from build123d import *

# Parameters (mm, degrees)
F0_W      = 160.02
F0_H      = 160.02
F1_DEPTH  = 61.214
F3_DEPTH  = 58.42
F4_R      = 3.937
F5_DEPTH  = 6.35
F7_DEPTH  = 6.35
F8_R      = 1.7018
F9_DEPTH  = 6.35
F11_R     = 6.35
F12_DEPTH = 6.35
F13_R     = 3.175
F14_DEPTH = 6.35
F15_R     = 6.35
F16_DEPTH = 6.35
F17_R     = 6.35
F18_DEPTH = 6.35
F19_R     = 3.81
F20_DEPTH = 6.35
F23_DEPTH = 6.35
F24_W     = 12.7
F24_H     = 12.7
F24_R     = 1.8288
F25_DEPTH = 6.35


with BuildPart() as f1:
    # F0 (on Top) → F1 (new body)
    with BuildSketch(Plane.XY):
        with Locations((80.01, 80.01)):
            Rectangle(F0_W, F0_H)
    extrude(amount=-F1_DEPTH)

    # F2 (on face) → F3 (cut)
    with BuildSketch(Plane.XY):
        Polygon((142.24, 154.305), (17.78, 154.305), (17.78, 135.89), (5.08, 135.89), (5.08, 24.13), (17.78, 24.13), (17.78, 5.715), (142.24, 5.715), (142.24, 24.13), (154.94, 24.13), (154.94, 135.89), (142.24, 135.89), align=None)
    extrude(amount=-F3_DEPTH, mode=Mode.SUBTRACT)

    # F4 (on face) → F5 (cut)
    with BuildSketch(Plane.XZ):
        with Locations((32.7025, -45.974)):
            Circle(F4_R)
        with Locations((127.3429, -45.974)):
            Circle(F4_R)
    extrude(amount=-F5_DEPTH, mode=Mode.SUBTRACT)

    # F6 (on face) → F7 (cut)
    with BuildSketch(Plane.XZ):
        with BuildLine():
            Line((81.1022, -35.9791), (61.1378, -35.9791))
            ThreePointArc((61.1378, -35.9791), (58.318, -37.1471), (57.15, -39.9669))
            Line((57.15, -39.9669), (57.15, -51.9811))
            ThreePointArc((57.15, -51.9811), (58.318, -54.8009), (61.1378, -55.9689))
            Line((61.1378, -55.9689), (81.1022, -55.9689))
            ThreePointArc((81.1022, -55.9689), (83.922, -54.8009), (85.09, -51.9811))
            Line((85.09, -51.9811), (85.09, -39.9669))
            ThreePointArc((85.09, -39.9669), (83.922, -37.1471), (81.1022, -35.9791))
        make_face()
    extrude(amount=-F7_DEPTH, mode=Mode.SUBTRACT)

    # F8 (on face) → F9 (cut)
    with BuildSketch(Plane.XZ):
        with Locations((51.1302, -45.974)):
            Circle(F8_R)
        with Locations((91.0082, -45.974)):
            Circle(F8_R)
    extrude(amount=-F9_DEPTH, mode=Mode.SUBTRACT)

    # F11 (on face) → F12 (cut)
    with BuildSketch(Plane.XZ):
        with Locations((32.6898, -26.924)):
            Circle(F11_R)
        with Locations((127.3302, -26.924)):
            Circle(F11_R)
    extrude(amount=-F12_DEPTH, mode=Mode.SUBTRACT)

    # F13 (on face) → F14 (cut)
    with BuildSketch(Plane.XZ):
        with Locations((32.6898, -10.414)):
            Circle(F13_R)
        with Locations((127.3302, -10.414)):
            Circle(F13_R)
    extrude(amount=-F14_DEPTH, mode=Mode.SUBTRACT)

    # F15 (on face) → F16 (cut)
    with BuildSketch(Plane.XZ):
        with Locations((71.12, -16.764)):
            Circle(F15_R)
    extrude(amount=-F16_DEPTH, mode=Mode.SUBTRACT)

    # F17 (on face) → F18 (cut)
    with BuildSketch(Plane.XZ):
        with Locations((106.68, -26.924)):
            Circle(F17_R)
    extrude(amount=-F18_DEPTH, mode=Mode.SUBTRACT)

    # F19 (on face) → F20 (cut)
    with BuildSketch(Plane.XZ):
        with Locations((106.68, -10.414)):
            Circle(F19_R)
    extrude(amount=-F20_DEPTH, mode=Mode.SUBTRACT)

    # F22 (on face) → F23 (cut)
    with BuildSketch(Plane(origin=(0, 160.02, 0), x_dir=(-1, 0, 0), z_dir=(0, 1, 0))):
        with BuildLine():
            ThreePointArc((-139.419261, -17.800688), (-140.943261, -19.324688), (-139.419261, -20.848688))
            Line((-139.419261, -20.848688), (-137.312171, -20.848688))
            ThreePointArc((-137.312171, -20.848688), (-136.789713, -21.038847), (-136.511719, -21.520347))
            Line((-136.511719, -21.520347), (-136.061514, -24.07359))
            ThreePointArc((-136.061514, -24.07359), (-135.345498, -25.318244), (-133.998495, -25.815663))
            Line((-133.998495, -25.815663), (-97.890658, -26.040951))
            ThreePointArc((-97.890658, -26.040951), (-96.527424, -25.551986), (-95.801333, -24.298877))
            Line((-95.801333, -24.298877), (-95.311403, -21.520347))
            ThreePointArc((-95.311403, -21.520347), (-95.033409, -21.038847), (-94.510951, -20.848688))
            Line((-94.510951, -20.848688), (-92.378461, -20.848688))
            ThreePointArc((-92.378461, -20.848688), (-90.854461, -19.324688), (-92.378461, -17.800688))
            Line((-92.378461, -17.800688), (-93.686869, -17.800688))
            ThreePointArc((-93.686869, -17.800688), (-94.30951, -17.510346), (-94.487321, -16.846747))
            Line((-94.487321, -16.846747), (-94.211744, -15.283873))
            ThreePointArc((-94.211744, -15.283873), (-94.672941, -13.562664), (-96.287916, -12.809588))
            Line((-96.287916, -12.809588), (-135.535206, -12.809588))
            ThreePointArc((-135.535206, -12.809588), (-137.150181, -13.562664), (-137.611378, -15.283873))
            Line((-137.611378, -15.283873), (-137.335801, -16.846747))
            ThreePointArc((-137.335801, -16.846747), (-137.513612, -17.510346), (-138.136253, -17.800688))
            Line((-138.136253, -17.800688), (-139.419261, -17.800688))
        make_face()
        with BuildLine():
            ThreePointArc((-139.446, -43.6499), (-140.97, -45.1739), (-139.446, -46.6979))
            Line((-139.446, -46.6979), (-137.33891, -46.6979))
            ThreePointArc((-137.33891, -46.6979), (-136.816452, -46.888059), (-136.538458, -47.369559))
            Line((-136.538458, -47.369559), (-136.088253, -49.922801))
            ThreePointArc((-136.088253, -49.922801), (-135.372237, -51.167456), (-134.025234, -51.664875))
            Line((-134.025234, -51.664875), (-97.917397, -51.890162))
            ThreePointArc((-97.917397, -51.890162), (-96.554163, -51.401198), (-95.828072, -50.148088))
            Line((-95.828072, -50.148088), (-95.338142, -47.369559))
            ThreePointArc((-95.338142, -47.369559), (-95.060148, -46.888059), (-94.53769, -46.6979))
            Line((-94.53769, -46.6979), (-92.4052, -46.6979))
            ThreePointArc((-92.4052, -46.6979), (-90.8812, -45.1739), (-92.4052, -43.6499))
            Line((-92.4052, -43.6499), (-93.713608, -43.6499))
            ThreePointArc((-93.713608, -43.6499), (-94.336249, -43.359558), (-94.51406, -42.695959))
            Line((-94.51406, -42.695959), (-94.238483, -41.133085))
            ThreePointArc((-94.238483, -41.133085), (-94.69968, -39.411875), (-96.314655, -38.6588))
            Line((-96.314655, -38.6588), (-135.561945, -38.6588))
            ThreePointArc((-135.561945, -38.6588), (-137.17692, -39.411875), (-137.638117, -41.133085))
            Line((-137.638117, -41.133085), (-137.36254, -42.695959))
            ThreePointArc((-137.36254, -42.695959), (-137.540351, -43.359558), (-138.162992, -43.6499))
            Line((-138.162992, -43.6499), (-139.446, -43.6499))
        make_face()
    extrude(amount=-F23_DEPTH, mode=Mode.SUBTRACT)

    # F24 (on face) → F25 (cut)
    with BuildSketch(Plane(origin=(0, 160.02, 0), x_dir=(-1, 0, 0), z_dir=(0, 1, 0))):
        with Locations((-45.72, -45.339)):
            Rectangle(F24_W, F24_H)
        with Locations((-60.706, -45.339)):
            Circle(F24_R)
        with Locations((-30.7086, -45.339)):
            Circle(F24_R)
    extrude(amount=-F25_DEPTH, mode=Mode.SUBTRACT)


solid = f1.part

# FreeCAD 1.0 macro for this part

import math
import FreeCAD as App
import Part
import Sketcher

V = App.Vector
Q = App.Units.Quantity


def add_polygon(sketch, points):
    """Adds a closed chain of lines whose ends are joined by coincident constraints."""
    first, n = sketch.GeometryCount, len(points)
    for a, b in zip(points, points[1:] + points[:1]):
        sketch.addGeometry(Part.LineSegment(App.Vector(*a, 0), App.Vector(*b, 0)), False)
    for i in range(n):
        sketch.addConstraint(Sketcher.Constraint("Coincident", first + i, 2, first + (i + 1) % n, 1))

doc = App.newDocument("Part")
body = doc.addObject("PartDesign::Body", "Body")

# Sketch on XY plane
sketch1 = doc.addObject("Sketcher::SketchObject", "Sketch")
body.addObject(sketch1)
sketch1.AttachmentSupport = (doc.XY_Plane, [""])
sketch1.MapMode = "FlatFace"
add_polygon(sketch1, [(0, 160.02), (0, 0), (160.02, 0), (160.02, 160.02)])  # lines 0-3
sketch1.addConstraint([
    Sketcher.Constraint("Vertical", 0),
    Sketcher.Constraint("Horizontal", 1),
    Sketcher.Constraint("Vertical", 2),
    Sketcher.Constraint("Horizontal", 3),
    Sketcher.Constraint("Coincident", 0, 2, -1, 1),
    Sketcher.Constraint("Equal", 3, 0),
    Sketcher.Constraint("DistanceX", 1, 1, 1, 2, Q("6.3 in")),
])
pad1 = doc.addObject("PartDesign::Pad", "Pad")
body.addObject(pad1)
pad1.Profile = sketch1
pad1.Length = Q("2.41 in")
pad1.Reversed = True

# Sketch on XY plane
sketch2 = doc.addObject("Sketcher::SketchObject", "Sketch001")
body.addObject(sketch2)
sketch2.AttachmentSupport = (doc.XY_Plane, [""])
sketch2.MapMode = "FlatFace"
add_polygon(sketch2, [(142.24, 154.305), (17.78, 154.305), (17.78, 135.89), (5.08, 135.89), (5.08, 24.13), (17.78, 24.13), (17.78, 5.715), (142.24, 5.715), (142.24, 24.13), (154.94, 24.13), (154.94, 135.89), (142.24, 135.89)])  # lines 0-11
sketch2.addConstraint([
    Sketcher.Constraint("Horizontal", 0),
    Sketcher.Constraint("Vertical", 1),
    Sketcher.Constraint("Horizontal", 2),
    Sketcher.Constraint("Vertical", 3),
    Sketcher.Constraint("Horizontal", 4),
    Sketcher.Constraint("Vertical", 5),
    Sketcher.Constraint("Horizontal", 6),
    Sketcher.Constraint("Vertical", 7),
    Sketcher.Constraint("Horizontal", 8),
    Sketcher.Constraint("Vertical", 9),
    Sketcher.Constraint("Horizontal", 10),
    Sketcher.Constraint("Vertical", 11),
    Sketcher.Constraint("Horizontal", 4, 2, 7, 2),
    Sketcher.Constraint("Horizontal", 2, 2, 9, 2),
    Sketcher.Constraint("Vertical", 1, 2, 4, 2),
    Sketcher.Constraint("Vertical", 7, 2, 10, 2),
    Sketcher.Constraint("Equal", 4, 8),
    Sketcher.Constraint("Equal", 1, 5),
    Sketcher.Constraint("DistanceX", 0, 2, 0, 1, Q("4.9 in")),
    Sketcher.Constraint("DistanceX", 2, 2, 2, 1, Q("0.5 in")),
    Sketcher.Constraint("DistanceY", 3, 2, 3, 1, Q("4.4 in")),
    Sketcher.Constraint("DistanceX", -1, 1, 0, 2, Q("0.7 in")),
    Sketcher.Constraint("DistanceY", 1, 2, 1, 1, Q("0.725 in")),
    Sketcher.Constraint("DistanceY", -1, 1, 1, 2, Q("5.35 in")),
])
pocket1 = doc.addObject("PartDesign::Pocket", "Pocket")
body.addObject(pocket1)
pocket1.Profile = sketch2
pocket1.Length = Q("2.3 in")

# Sketch on XZ plane
sketch3 = doc.addObject("Sketcher::SketchObject", "Sketch002")
body.addObject(sketch3)
sketch3.AttachmentSupport = (doc.XZ_Plane, [""])
sketch3.MapMode = "FlatFace"
sketch3.addGeometry([
    Part.Circle(V(32.7025, -45.974, 0), V(0, 0, 1), 3.937),
    Part.Circle(V(127.3429, -45.974, 0), V(0, 0, 1), 3.937),
], False)
sketch3.addConstraint([
    Sketcher.Constraint("Equal", 0, 1),
    Sketcher.Constraint("Horizontal", 0, 3, 1, 3),
    Sketcher.Constraint("Diameter", 0, Q("0.31 in")),
    Sketcher.Constraint("DistanceY", 0, 3, -1, 1, Q("1.81 in")),
    Sketcher.Constraint("DistanceX", 0, 3, 1, 3, Q("3.726 in")),
    Sketcher.Constraint("DistanceX", -1, 1, 0, 3, Q("1.2875 in")),
])
pocket2 = doc.addObject("PartDesign::Pocket", "Pocket001")
body.addObject(pocket2)
pocket2.Profile = sketch3
pocket2.Length = Q("0.25 in")

# Sketch on XZ plane
sketch4 = doc.addObject("Sketcher::SketchObject", "Sketch003")
body.addObject(sketch4)
sketch4.AttachmentSupport = (doc.XZ_Plane, [""])
sketch4.MapMode = "FlatFace"
sketch4.addGeometry([
    Part.LineSegment(V(81.1022, -35.9791, 0), V(61.1378, -35.9791, 0)),  # 0
    Part.ArcOfCircle(Part.Circle(V(61.137801, -39.966901, 0), V(0, 0, 1), 3.987801), math.radians(90.000021), math.radians(179.999979)),  # 1
    Part.LineSegment(V(57.15, -39.9669, 0), V(57.15, -51.9811, 0)),  # 2
    Part.ArcOfCircle(Part.Circle(V(61.137801, -51.981099, 0), V(0, 0, 1), 3.987801), math.radians(-179.999979), math.radians(-90.000021)),  # 3
    Part.LineSegment(V(61.1378, -55.9689, 0), V(81.1022, -55.9689, 0)),  # 4
    Part.ArcOfCircle(Part.Circle(V(81.102199, -51.981099, 0), V(0, 0, 1), 3.987801), math.radians(-89.999979), math.radians(-0.000021)),  # 5
    Part.LineSegment(V(85.09, -51.9811, 0), V(85.09, -39.9669, 0)),  # 6
    Part.ArcOfCircle(Part.Circle(V(81.102199, -39.966901, 0), V(0, 0, 1), 3.987801), math.radians(0.000021), math.radians(89.999979)),  # 7
], False)
sketch4.addConstraint([
    Sketcher.Constraint("Tangent", 0, 2, 1, 1),
    Sketcher.Constraint("Tangent", 1, 2, 2, 1),
    Sketcher.Constraint("Tangent", 2, 2, 3, 1),
    Sketcher.Constraint("Tangent", 3, 2, 4, 1),
    Sketcher.Constraint("Tangent", 4, 2, 5, 1),
    Sketcher.Constraint("Tangent", 5, 2, 6, 1),
    Sketcher.Constraint("Tangent", 6, 2, 7, 1),
    Sketcher.Constraint("Tangent", 7, 2, 0, 1),
    Sketcher.Constraint("Horizontal", 0),
    Sketcher.Constraint("Vertical", 2),
    Sketcher.Constraint("Horizontal", 4),
    Sketcher.Constraint("Vertical", 6),
    Sketcher.Constraint("Equal", 1, 3),
    Sketcher.Constraint("Equal", 3, 5),
    Sketcher.Constraint("Equal", 5, 7),
    Sketcher.Constraint("Radius", 1, Q("0.1570001 in")),
    Sketcher.Constraint("DistanceX", 0, 2, 0, 1, Q("0.786 in")),
    Sketcher.Constraint("DistanceY", 2, 2, 2, 1, Q("0.473 in")),
    Sketcher.Constraint("DistanceX", -1, 1, 1, 2, Q("2.25 in")),
    Sketcher.Constraint("DistanceY", 1, 3, -1, 1, Q("1.5735001 in")),
])
pocket3 = doc.addObject("PartDesign::Pocket", "Pocket002")
body.addObject(pocket3)
pocket3.Profile = sketch4
pocket3.Length = Q("0.25 in")

# Sketch on XZ plane
sketch5 = doc.addObject("Sketcher::SketchObject", "Sketch004")
body.addObject(sketch5)
sketch5.AttachmentSupport = (doc.XZ_Plane, [""])
sketch5.MapMode = "FlatFace"
sketch5.addGeometry([
    Part.Circle(V(51.1302, -45.974, 0), V(0, 0, 1), 1.7018),
    Part.Circle(V(91.0082, -45.974, 0), V(0, 0, 1), 1.7018),
], False)
sketch5.addConstraint([
    Sketcher.Constraint("Equal", 0, 1),
    Sketcher.Constraint("Horizontal", 0, 3, 1, 3),
    Sketcher.Constraint("Diameter", 0, Q("0.134 in")),
    Sketcher.Constraint("DistanceY", 0, 3, -1, 1, Q("1.81 in")),
    Sketcher.Constraint("DistanceX", 0, 3, 1, 3, Q("1.57 in")),
    Sketcher.Constraint("DistanceX", -1, 1, 0, 3, Q("2.013 in")),
])
pocket4 = doc.addObject("PartDesign::Pocket", "Pocket003")
body.addObject(pocket4)
pocket4.Profile = sketch5
pocket4.Length = Q("0.25 in")

# Sketch on XZ plane
sketch6 = doc.addObject("Sketcher::SketchObject", "Sketch005")
body.addObject(sketch6)
sketch6.AttachmentSupport = (doc.XZ_Plane, [""])
sketch6.MapMode = "FlatFace"
sketch6.addGeometry([
    Part.Circle(V(32.6898, -26.924, 0), V(0, 0, 1), 6.35),
    Part.Circle(V(127.3302, -26.924, 0), V(0, 0, 1), 6.35),
], False)
sketch6.addConstraint([
    Sketcher.Constraint("Equal", 0, 1),
    Sketcher.Constraint("Horizontal", 0, 3, 1, 3),
    Sketcher.Constraint("Diameter", 0, Q("0.5 in")),
    Sketcher.Constraint("DistanceY", 0, 3, -1, 1, Q("1.06 in")),
    Sketcher.Constraint("DistanceX", -1, 1, 0, 3, Q("1.287 in")),
    Sketcher.Constraint("DistanceX", -1, 1, 1, 3, Q("5.013 in")),
])
pocket5 = doc.addObject("PartDesign::Pocket", "Pocket004")
body.addObject(pocket5)
pocket5.Profile = sketch6
pocket5.Length = Q("0.25 in")

# Sketch on XZ plane
sketch7 = doc.addObject("Sketcher::SketchObject", "Sketch006")
body.addObject(sketch7)
sketch7.AttachmentSupport = (doc.XZ_Plane, [""])
sketch7.MapMode = "FlatFace"
sketch7.addGeometry([
    Part.Circle(V(32.6898, -10.414, 0), V(0, 0, 1), 3.175),
    Part.Circle(V(127.3302, -10.414, 0), V(0, 0, 1), 3.175),
], False)
sketch7.addConstraint([
    Sketcher.Constraint("Equal", 0, 1),
    Sketcher.Constraint("Horizontal", 0, 3, 1, 3),
    Sketcher.Constraint("Diameter", 0, Q("0.25 in")),
    Sketcher.Constraint("DistanceY", 0, 3, -1, 1, Q("0.41 in")),
    Sketcher.Constraint("DistanceX", -1, 1, 0, 3, Q("1.287 in")),
    Sketcher.Constraint("DistanceX", -1, 1, 1, 3, Q("5.013 in")),
])
pocket6 = doc.addObject("PartDesign::Pocket", "Pocket005")
body.addObject(pocket6)
pocket6.Profile = sketch7
pocket6.Length = Q("0.25 in")

# Sketch on XZ plane
sketch8 = doc.addObject("Sketcher::SketchObject", "Sketch007")
body.addObject(sketch8)
sketch8.AttachmentSupport = (doc.XZ_Plane, [""])
sketch8.MapMode = "FlatFace"
sketch8.addGeometry(Part.Circle(V(71.12, -16.764, 0), V(0, 0, 1), 6.35), False)
sketch8.addConstraint([
    Sketcher.Constraint("Diameter", 0, Q("0.5 in")),
    Sketcher.Constraint("DistanceX", -1, 1, 0, 3, Q("2.8 in")),
    Sketcher.Constraint("DistanceY", 0, 3, -1, 1, Q("0.66 in")),
])
pocket7 = doc.addObject("PartDesign::Pocket", "Pocket006")
body.addObject(pocket7)
pocket7.Profile = sketch8
pocket7.Length = Q("0.25 in")

# Sketch on XZ plane
sketch9 = doc.addObject("Sketcher::SketchObject", "Sketch008")
body.addObject(sketch9)
sketch9.AttachmentSupport = (doc.XZ_Plane, [""])
sketch9.MapMode = "FlatFace"
sketch9.addGeometry(Part.Circle(V(106.68, -26.924, 0), V(0, 0, 1), 6.35), False)
sketch9.addConstraint([
    Sketcher.Constraint("Diameter", 0, Q("0.5 in")),
    Sketcher.Constraint("DistanceX", -1, 1, 0, 3, Q("4.2 in")),
    Sketcher.Constraint("DistanceY", 0, 3, -1, 1, Q("1.06 in")),
])
pocket8 = doc.addObject("PartDesign::Pocket", "Pocket007")
body.addObject(pocket8)
pocket8.Profile = sketch9
pocket8.Length = Q("0.25 in")

# Sketch on XZ plane
sketch10 = doc.addObject("Sketcher::SketchObject", "Sketch009")
body.addObject(sketch10)
sketch10.AttachmentSupport = (doc.XZ_Plane, [""])
sketch10.MapMode = "FlatFace"
sketch10.addGeometry(Part.Circle(V(106.68, -10.414, 0), V(0, 0, 1), 3.81), False)
sketch10.addConstraint([
    Sketcher.Constraint("Diameter", 0, Q("0.3 in")),
    Sketcher.Constraint("DistanceX", -1, 1, 0, 3, Q("4.2 in")),
    Sketcher.Constraint("DistanceY", 0, 3, -1, 1, Q("0.41 in")),
])
pocket9 = doc.addObject("PartDesign::Pocket", "Pocket008")
body.addObject(pocket9)
pocket9.Profile = sketch10
pocket9.Length = Q("0.25 in")

# Sketch on XZ plane
sketch11 = doc.addObject("Sketcher::SketchObject", "Sketch010")
body.addObject(sketch11)
sketch11.AttachmentSupport = (doc.XZ_Plane, [""])
sketch11.MapMode = "FlatFace"
sketch11.AttachmentOffset = App.Placement(V(0, 0, -6.3 * 25.4), App.Rotation())
sketch11.addGeometry([
    Part.ArcOfCircle(Part.Circle(V(139.419261, -19.324688, 0), V(0, 0, 1), 1.524), math.radians(-90), math.radians(90)),  # 0
    Part.LineSegment(V(139.419261, -20.848688, 0), V(137.312171, -20.848688, 0)),  # 1
    Part.ArcOfCircle(Part.Circle(V(137.312171, -21.661488, 0), V(0, 0, 1), 0.8128), math.radians(89.999972), math.radians(170.00003)),  # 2
    Part.LineSegment(V(136.511719, -21.520347, 0), V(136.061514, -24.07359, 0)),  # 3
    Part.ArcOfCircle(Part.Circle(V(133.985342, -23.707503, 0), V(0, 0, 1), 2.108201), math.radians(-89.642528), math.radians(-10.00004)),  # 4
    Part.LineSegment(V(133.998495, -25.815663, 0), V(97.890658, -26.040951, 0)),  # 5
    Part.ArcOfCircle(Part.Circle(V(97.877505, -23.932792, 0), V(0, 0, 1), 2.1082), math.radians(-170), math.radians(-89.642526)),  # 6
    Part.LineSegment(V(95.801333, -24.298877, 0), V(95.311403, -21.520347, 0)),  # 7
    Part.ArcOfCircle(Part.Circle(V(94.510951, -21.661488, 0), V(0, 0, 1), 0.8128), math.radians(9.99997), math.radians(90.000028)),  # 8
    Part.LineSegment(V(94.510951, -20.848688, 0), V(92.378461, -20.848688, 0)),  # 9
    Part.ArcOfCircle(Part.Circle(V(92.378461, -19.324688, 0), V(0, 0, 1), 1.524), math.radians(90), math.radians(270)),  # 10
    Part.LineSegment(V(92.378461, -17.800688, 0), V(93.686869, -17.800688, 0)),  # 11
    Part.ArcOfCircle(Part.Circle(V(93.686869, -16.987888, 0), V(0, 0, 1), 0.8128), math.radians(-90.000022), math.radians(9.999989)),  # 12
    Part.LineSegment(V(94.487321, -16.846747, 0), V(94.211744, -15.283873, 0)),  # 13
    Part.ArcOfCircle(Part.Circle(V(96.287917, -14.917789, 0), V(0, 0, 1), 2.108201), math.radians(90.000032), math.radians(189.999958)),  # 14
    Part.LineSegment(V(96.287916, -12.809588, 0), V(135.535206, -12.809588, 0)),  # 15
    Part.ArcOfCircle(Part.Circle(V(135.535205, -14.917789, 0), V(0, 0, 1), 2.108201), math.radians(-9.999958), math.radians(89.999968)),  # 16
    Part.LineSegment(V(137.611378, -15.283873, 0), V(137.335801, -16.846747, 0)),  # 17
    Part.ArcOfCircle(Part.Circle(V(138.136253, -16.987888, 0), V(0, 0, 1), 0.8128), math.radians(170.000011), math.radians(270.000022)),  # 18
    Part.LineSegment(V(138.136253, -17.800688, 0), V(139.419261, -17.800688, 0)),  # 19
    Part.ArcOfCircle(Part.Circle(V(139.446, -45.1739, 0), V(0, 0, 1), 1.524), math.radians(-90), math.radians(90)),  # 20
    Part.LineSegment(V(139.446, -46.6979, 0), V(137.33891, -46.6979, 0)),  # 21
    Part.ArcOfCircle(Part.Circle(V(137.33891, -47.5107, 0), V(0, 0, 1), 0.8128), math.radians(89.999972), math.radians(170.00003)),  # 22
    Part.LineSegment(V(136.538458, -47.369559, 0), V(136.088253, -49.922801, 0)),  # 23
    Part.ArcOfCircle(Part.Circle(V(134.012081, -49.556716, 0), V(0, 0, 1), 2.1082), math.radians(-89.642531), math.radians(-10.000004)),  # 24
    Part.LineSegment(V(134.025234, -51.664875, 0), V(97.917397, -51.890162, 0)),  # 25
    Part.ArcOfCircle(Part.Circle(V(97.904242, -49.782005, 0), V(0, 0, 1), 2.108198), math.radians(-170.000057), math.radians(-89.642469)),  # 26
    Part.LineSegment(V(95.828072, -50.148088, 0), V(95.338142, -47.369559, 0)),  # 27
    Part.ArcOfCircle(Part.Circle(V(94.53769, -47.5107, 0), V(0, 0, 1), 0.8128), math.radians(9.99997), math.radians(90.000028)),  # 28
    Part.LineSegment(V(94.53769, -46.6979, 0), V(92.4052, -46.6979, 0)),  # 29
    Part.ArcOfCircle(Part.Circle(V(92.4052, -45.1739, 0), V(0, 0, 1), 1.524), math.radians(90), math.radians(270)),  # 30
    Part.LineSegment(V(92.4052, -43.6499, 0), V(93.713608, -43.6499, 0)),  # 31
    Part.ArcOfCircle(Part.Circle(V(93.713608, -42.8371, 0), V(0, 0, 1), 0.8128), math.radians(-90.000022), math.radians(9.999989)),  # 32
    Part.LineSegment(V(94.51406, -42.695959, 0), V(94.238483, -41.133085, 0)),  # 33
    Part.ArcOfCircle(Part.Circle(V(96.314655, -40.767, 0), V(0, 0, 1), 2.1082), math.radians(89.999994), math.radians(189.999996)),  # 34
    Part.LineSegment(V(96.314655, -38.6588, 0), V(135.561945, -38.6588, 0)),  # 35
    Part.ArcOfCircle(Part.Circle(V(135.561945, -40.767, 0), V(0, 0, 1), 2.1082), math.radians(-9.999996), math.radians(90.000006)),  # 36
    Part.LineSegment(V(137.638117, -41.133085, 0), V(137.36254, -42.695959, 0)),  # 37
    Part.ArcOfCircle(Part.Circle(V(138.162992, -42.8371, 0), V(0, 0, 1), 0.8128), math.radians(170.000011), math.radians(270.000022)),  # 38
    Part.LineSegment(V(138.162992, -43.6499, 0), V(139.446, -43.6499, 0)),  # 39
], False)
sketch11.addConstraint([
    Sketcher.Constraint("Tangent", 0, 1, 1, 1),
    Sketcher.Constraint("Tangent", 1, 2, 2, 1),
    Sketcher.Constraint("Tangent", 2, 2, 3, 1),
    Sketcher.Constraint("Tangent", 3, 2, 4, 2),
    Sketcher.Constraint("Tangent", 4, 1, 5, 1),
    Sketcher.Constraint("Tangent", 5, 2, 6, 2),
    Sketcher.Constraint("Tangent", 6, 1, 7, 1),
    Sketcher.Constraint("Tangent", 7, 2, 8, 1),
    Sketcher.Constraint("Tangent", 8, 2, 9, 1),
    Sketcher.Constraint("Tangent", 9, 2, 10, 2),
    Sketcher.Constraint("Tangent", 10, 1, 11, 1),
    Sketcher.Constraint("Tangent", 11, 2, 12, 1),
    Sketcher.Constraint("Tangent", 12, 2, 13, 1),
    Sketcher.Constraint("Tangent", 13, 2, 14, 2),
    Sketcher.Constraint("Tangent", 14, 1, 15, 1),
    Sketcher.Constraint("Tangent", 15, 2, 16, 2),
    Sketcher.Constraint("Tangent", 16, 1, 17, 1),
    Sketcher.Constraint("Tangent", 17, 2, 18, 1),
    Sketcher.Constraint("Tangent", 18, 2, 19, 1),
    Sketcher.Constraint("Tangent", 19, 2, 0, 2),
    Sketcher.Constraint("Tangent", 20, 1, 21, 1),
    Sketcher.Constraint("Tangent", 21, 2, 22, 1),
    Sketcher.Constraint("Tangent", 22, 2, 23, 1),
    Sketcher.Constraint("Tangent", 23, 2, 24, 2),
    Sketcher.Constraint("Tangent", 24, 1, 25, 1),
    Sketcher.Constraint("Tangent", 25, 2, 26, 2),
    Sketcher.Constraint("Tangent", 26, 1, 27, 1),
    Sketcher.Constraint("Tangent", 27, 2, 28, 1),
    Sketcher.Constraint("Tangent", 28, 2, 29, 1),
    Sketcher.Constraint("Tangent", 29, 2, 30, 2),
    Sketcher.Constraint("Tangent", 30, 1, 31, 1),
    Sketcher.Constraint("Tangent", 31, 2, 32, 1),
    Sketcher.Constraint("Tangent", 32, 2, 33, 1),
    Sketcher.Constraint("Tangent", 33, 2, 34, 2),
    Sketcher.Constraint("Tangent", 34, 1, 35, 1),
    Sketcher.Constraint("Tangent", 35, 2, 36, 2),
    Sketcher.Constraint("Tangent", 36, 1, 37, 1),
    Sketcher.Constraint("Tangent", 37, 2, 38, 1),
    Sketcher.Constraint("Tangent", 38, 2, 39, 1),
    Sketcher.Constraint("Tangent", 39, 2, 20, 2),
    Sketcher.Constraint("Horizontal", 1),
    Sketcher.Constraint("Horizontal", 9),
    Sketcher.Constraint("Horizontal", 11),
    Sketcher.Constraint("Horizontal", 15),
    Sketcher.Constraint("Horizontal", 19),
    Sketcher.Constraint("Horizontal", 21),
    Sketcher.Constraint("Horizontal", 29),
    Sketcher.Constraint("Horizontal", 31),
    Sketcher.Constraint("Horizontal", 35),
    Sketcher.Constraint("Horizontal", 39),
    Sketcher.Constraint("Equal", 4, 6),
    Sketcher.Constraint("Equal", 2, 8),
    Sketcher.Constraint("Equal", 0, 10),
    Sketcher.Constraint("Equal", 8, 12),
    Sketcher.Constraint("Equal", 6, 14),
    Sketcher.Constraint("Equal", 14, 16),
    Sketcher.Constraint("Equal", 12, 18),
    Sketcher.Constraint("Equal", 10, 20),
    Sketcher.Constraint("Equal", 18, 22),
    Sketcher.Constraint("Equal", 16, 24),
    Sketcher.Constraint("Equal", 22, 28),
    Sketcher.Constraint("Equal", 20, 30),
    Sketcher.Constraint("Equal", 28, 32),
    Sketcher.Constraint("Equal", 24, 34),
    Sketcher.Constraint("Equal", 34, 36),
    Sketcher.Constraint("Equal", 32, 38),
    Sketcher.Constraint("Parallel", 7, 13),
    Sketcher.Constraint("Parallel", 3, 17),
    Sketcher.Constraint("Parallel", 17, 23),
    Sketcher.Constraint("Parallel", 5, 25),
    Sketcher.Constraint("Parallel", 13, 27),
    Sketcher.Constraint("Parallel", 27, 33),
    Sketcher.Constraint("Parallel", 23, 37),
    Sketcher.Constraint("Horizontal", 2, 3, 8, 3),
    Sketcher.Constraint("Horizontal", 22, 3, 28, 3),
    Sketcher.Constraint("Horizontal", 2, 2, 7, 2),
    Sketcher.Constraint("Equal", 1, 21),
    Sketcher.Constraint("Equal", 9, 29),
    Sketcher.Constraint("Equal", 11, 31),
    Sketcher.Constraint("Equal", 15, 35),
    Sketcher.Constraint("Equal", 19, 39),
    Sketcher.Constraint("Equal", 3, 23),
    Sketcher.Constraint("Equal", 5, 25),
    Sketcher.Constraint("Equal", 7, 27),
    Sketcher.Constraint("Radius", 0, Q("0.06 in")),
    Sketcher.Constraint("Angle", 3, Q("-99.999986 deg")),
    Sketcher.Constraint("Radius", 2, Q("0.032 in")),
    Sketcher.Constraint("Radius", 4, Q("0.083 in")),
    Sketcher.Constraint("DistanceX", -1, 1, 20, 3, Q("5.49 in")),
    Sketcher.Constraint("DistanceX", -1, 1, 30, 3, Q("3.638 in")),
    Sketcher.Constraint("DistanceY", 34, 3, -1, 1, Q("1.605 in")),
    Sketcher.Constraint("DistanceY", 20, 3, -1, 1, Q("1.7785 in")),
    Sketcher.Constraint("DistanceX", 14, 3, 5, 2, Q("0.0631 in")),
    Sketcher.Constraint("DistanceX", 1, 2, 1, 1, Q("2.10709 mm")),
    Sketcher.Constraint("DistanceX", 9, 2, 9, 1, Q("2.13249 mm")),
    Sketcher.Constraint("DistanceX", 15, 1, 15, 2, Q("39.24729 mm")),
    Sketcher.Constraint("DistanceX", -1, 1, 17, 2, Q("137.335801 mm")),
    Sketcher.Constraint("DistanceY", 23, 2, -1, 1, Q("49.922801 mm")),
    Sketcher.Constraint("DistanceX", 12, 3, 2, 3, Q("43.625301 mm")),
    Sketcher.Constraint("DistanceY", 6, 3, -1, 1, Q("23.932792 mm")),
])
pocket10 = doc.addObject("PartDesign::Pocket", "Pocket009")
body.addObject(pocket10)
pocket10.Profile = sketch11
pocket10.Length = Q("0.25 in")
pocket10.Reversed = True

# Sketch on XZ plane
sketch12 = doc.addObject("Sketcher::SketchObject", "Sketch011")
body.addObject(sketch12)
sketch12.AttachmentSupport = (doc.XZ_Plane, [""])
sketch12.MapMode = "FlatFace"
sketch12.AttachmentOffset = App.Placement(V(0, 0, -6.3 * 25.4), App.Rotation())
add_polygon(sketch12, [(52.07, -38.989), (52.07, -51.689), (39.37, -51.689), (39.37, -38.989)])  # lines 0-3
sketch12.addGeometry(Part.Circle(V(60.706, -45.339, 0), V(0, 0, 1), 1.8288), False)  # 4
sketch12.addGeometry(Part.Circle(V(30.7086, -45.339, 0), V(0, 0, 1), 1.8288), False)  # 5
sketch12.addConstraint([
    Sketcher.Constraint("Vertical", 0),
    Sketcher.Constraint("Horizontal", 1),
    Sketcher.Constraint("Vertical", 2),
    Sketcher.Constraint("Horizontal", 3),
    Sketcher.Constraint("Equal", 4, 5),
    Sketcher.Constraint("Horizontal", 4, 3, 5, 3),
    Sketcher.Constraint("Equal", 3, 0),
    Sketcher.Constraint("Diameter", 4, Q("0.144 in")),
    Sketcher.Constraint("DistanceX", 1, 2, 1, 1, Q("0.5 in")),
    Sketcher.Constraint("DistanceX", -1, 1, 4, 3, Q("2.39 in")),
    Sketcher.Constraint("DistanceX", -1, 1, 0, 2, Q("2.05 in")),
    Sketcher.Constraint("DistanceY", 0, 2, 4, 3, Q("0.25 in")),
    Sketcher.Constraint("DistanceY", 4, 3, -1, 1, Q("1.785 in")),
    Sketcher.Constraint("DistanceX", -1, 1, 5, 3, Q("1.209 in")),
])
pocket11 = doc.addObject("PartDesign::Pocket", "Pocket010")
body.addObject(pocket11)
pocket11.Profile = sketch12
pocket11.Length = Q("0.25 in")
pocket11.Reversed = True

doc.recompute()
